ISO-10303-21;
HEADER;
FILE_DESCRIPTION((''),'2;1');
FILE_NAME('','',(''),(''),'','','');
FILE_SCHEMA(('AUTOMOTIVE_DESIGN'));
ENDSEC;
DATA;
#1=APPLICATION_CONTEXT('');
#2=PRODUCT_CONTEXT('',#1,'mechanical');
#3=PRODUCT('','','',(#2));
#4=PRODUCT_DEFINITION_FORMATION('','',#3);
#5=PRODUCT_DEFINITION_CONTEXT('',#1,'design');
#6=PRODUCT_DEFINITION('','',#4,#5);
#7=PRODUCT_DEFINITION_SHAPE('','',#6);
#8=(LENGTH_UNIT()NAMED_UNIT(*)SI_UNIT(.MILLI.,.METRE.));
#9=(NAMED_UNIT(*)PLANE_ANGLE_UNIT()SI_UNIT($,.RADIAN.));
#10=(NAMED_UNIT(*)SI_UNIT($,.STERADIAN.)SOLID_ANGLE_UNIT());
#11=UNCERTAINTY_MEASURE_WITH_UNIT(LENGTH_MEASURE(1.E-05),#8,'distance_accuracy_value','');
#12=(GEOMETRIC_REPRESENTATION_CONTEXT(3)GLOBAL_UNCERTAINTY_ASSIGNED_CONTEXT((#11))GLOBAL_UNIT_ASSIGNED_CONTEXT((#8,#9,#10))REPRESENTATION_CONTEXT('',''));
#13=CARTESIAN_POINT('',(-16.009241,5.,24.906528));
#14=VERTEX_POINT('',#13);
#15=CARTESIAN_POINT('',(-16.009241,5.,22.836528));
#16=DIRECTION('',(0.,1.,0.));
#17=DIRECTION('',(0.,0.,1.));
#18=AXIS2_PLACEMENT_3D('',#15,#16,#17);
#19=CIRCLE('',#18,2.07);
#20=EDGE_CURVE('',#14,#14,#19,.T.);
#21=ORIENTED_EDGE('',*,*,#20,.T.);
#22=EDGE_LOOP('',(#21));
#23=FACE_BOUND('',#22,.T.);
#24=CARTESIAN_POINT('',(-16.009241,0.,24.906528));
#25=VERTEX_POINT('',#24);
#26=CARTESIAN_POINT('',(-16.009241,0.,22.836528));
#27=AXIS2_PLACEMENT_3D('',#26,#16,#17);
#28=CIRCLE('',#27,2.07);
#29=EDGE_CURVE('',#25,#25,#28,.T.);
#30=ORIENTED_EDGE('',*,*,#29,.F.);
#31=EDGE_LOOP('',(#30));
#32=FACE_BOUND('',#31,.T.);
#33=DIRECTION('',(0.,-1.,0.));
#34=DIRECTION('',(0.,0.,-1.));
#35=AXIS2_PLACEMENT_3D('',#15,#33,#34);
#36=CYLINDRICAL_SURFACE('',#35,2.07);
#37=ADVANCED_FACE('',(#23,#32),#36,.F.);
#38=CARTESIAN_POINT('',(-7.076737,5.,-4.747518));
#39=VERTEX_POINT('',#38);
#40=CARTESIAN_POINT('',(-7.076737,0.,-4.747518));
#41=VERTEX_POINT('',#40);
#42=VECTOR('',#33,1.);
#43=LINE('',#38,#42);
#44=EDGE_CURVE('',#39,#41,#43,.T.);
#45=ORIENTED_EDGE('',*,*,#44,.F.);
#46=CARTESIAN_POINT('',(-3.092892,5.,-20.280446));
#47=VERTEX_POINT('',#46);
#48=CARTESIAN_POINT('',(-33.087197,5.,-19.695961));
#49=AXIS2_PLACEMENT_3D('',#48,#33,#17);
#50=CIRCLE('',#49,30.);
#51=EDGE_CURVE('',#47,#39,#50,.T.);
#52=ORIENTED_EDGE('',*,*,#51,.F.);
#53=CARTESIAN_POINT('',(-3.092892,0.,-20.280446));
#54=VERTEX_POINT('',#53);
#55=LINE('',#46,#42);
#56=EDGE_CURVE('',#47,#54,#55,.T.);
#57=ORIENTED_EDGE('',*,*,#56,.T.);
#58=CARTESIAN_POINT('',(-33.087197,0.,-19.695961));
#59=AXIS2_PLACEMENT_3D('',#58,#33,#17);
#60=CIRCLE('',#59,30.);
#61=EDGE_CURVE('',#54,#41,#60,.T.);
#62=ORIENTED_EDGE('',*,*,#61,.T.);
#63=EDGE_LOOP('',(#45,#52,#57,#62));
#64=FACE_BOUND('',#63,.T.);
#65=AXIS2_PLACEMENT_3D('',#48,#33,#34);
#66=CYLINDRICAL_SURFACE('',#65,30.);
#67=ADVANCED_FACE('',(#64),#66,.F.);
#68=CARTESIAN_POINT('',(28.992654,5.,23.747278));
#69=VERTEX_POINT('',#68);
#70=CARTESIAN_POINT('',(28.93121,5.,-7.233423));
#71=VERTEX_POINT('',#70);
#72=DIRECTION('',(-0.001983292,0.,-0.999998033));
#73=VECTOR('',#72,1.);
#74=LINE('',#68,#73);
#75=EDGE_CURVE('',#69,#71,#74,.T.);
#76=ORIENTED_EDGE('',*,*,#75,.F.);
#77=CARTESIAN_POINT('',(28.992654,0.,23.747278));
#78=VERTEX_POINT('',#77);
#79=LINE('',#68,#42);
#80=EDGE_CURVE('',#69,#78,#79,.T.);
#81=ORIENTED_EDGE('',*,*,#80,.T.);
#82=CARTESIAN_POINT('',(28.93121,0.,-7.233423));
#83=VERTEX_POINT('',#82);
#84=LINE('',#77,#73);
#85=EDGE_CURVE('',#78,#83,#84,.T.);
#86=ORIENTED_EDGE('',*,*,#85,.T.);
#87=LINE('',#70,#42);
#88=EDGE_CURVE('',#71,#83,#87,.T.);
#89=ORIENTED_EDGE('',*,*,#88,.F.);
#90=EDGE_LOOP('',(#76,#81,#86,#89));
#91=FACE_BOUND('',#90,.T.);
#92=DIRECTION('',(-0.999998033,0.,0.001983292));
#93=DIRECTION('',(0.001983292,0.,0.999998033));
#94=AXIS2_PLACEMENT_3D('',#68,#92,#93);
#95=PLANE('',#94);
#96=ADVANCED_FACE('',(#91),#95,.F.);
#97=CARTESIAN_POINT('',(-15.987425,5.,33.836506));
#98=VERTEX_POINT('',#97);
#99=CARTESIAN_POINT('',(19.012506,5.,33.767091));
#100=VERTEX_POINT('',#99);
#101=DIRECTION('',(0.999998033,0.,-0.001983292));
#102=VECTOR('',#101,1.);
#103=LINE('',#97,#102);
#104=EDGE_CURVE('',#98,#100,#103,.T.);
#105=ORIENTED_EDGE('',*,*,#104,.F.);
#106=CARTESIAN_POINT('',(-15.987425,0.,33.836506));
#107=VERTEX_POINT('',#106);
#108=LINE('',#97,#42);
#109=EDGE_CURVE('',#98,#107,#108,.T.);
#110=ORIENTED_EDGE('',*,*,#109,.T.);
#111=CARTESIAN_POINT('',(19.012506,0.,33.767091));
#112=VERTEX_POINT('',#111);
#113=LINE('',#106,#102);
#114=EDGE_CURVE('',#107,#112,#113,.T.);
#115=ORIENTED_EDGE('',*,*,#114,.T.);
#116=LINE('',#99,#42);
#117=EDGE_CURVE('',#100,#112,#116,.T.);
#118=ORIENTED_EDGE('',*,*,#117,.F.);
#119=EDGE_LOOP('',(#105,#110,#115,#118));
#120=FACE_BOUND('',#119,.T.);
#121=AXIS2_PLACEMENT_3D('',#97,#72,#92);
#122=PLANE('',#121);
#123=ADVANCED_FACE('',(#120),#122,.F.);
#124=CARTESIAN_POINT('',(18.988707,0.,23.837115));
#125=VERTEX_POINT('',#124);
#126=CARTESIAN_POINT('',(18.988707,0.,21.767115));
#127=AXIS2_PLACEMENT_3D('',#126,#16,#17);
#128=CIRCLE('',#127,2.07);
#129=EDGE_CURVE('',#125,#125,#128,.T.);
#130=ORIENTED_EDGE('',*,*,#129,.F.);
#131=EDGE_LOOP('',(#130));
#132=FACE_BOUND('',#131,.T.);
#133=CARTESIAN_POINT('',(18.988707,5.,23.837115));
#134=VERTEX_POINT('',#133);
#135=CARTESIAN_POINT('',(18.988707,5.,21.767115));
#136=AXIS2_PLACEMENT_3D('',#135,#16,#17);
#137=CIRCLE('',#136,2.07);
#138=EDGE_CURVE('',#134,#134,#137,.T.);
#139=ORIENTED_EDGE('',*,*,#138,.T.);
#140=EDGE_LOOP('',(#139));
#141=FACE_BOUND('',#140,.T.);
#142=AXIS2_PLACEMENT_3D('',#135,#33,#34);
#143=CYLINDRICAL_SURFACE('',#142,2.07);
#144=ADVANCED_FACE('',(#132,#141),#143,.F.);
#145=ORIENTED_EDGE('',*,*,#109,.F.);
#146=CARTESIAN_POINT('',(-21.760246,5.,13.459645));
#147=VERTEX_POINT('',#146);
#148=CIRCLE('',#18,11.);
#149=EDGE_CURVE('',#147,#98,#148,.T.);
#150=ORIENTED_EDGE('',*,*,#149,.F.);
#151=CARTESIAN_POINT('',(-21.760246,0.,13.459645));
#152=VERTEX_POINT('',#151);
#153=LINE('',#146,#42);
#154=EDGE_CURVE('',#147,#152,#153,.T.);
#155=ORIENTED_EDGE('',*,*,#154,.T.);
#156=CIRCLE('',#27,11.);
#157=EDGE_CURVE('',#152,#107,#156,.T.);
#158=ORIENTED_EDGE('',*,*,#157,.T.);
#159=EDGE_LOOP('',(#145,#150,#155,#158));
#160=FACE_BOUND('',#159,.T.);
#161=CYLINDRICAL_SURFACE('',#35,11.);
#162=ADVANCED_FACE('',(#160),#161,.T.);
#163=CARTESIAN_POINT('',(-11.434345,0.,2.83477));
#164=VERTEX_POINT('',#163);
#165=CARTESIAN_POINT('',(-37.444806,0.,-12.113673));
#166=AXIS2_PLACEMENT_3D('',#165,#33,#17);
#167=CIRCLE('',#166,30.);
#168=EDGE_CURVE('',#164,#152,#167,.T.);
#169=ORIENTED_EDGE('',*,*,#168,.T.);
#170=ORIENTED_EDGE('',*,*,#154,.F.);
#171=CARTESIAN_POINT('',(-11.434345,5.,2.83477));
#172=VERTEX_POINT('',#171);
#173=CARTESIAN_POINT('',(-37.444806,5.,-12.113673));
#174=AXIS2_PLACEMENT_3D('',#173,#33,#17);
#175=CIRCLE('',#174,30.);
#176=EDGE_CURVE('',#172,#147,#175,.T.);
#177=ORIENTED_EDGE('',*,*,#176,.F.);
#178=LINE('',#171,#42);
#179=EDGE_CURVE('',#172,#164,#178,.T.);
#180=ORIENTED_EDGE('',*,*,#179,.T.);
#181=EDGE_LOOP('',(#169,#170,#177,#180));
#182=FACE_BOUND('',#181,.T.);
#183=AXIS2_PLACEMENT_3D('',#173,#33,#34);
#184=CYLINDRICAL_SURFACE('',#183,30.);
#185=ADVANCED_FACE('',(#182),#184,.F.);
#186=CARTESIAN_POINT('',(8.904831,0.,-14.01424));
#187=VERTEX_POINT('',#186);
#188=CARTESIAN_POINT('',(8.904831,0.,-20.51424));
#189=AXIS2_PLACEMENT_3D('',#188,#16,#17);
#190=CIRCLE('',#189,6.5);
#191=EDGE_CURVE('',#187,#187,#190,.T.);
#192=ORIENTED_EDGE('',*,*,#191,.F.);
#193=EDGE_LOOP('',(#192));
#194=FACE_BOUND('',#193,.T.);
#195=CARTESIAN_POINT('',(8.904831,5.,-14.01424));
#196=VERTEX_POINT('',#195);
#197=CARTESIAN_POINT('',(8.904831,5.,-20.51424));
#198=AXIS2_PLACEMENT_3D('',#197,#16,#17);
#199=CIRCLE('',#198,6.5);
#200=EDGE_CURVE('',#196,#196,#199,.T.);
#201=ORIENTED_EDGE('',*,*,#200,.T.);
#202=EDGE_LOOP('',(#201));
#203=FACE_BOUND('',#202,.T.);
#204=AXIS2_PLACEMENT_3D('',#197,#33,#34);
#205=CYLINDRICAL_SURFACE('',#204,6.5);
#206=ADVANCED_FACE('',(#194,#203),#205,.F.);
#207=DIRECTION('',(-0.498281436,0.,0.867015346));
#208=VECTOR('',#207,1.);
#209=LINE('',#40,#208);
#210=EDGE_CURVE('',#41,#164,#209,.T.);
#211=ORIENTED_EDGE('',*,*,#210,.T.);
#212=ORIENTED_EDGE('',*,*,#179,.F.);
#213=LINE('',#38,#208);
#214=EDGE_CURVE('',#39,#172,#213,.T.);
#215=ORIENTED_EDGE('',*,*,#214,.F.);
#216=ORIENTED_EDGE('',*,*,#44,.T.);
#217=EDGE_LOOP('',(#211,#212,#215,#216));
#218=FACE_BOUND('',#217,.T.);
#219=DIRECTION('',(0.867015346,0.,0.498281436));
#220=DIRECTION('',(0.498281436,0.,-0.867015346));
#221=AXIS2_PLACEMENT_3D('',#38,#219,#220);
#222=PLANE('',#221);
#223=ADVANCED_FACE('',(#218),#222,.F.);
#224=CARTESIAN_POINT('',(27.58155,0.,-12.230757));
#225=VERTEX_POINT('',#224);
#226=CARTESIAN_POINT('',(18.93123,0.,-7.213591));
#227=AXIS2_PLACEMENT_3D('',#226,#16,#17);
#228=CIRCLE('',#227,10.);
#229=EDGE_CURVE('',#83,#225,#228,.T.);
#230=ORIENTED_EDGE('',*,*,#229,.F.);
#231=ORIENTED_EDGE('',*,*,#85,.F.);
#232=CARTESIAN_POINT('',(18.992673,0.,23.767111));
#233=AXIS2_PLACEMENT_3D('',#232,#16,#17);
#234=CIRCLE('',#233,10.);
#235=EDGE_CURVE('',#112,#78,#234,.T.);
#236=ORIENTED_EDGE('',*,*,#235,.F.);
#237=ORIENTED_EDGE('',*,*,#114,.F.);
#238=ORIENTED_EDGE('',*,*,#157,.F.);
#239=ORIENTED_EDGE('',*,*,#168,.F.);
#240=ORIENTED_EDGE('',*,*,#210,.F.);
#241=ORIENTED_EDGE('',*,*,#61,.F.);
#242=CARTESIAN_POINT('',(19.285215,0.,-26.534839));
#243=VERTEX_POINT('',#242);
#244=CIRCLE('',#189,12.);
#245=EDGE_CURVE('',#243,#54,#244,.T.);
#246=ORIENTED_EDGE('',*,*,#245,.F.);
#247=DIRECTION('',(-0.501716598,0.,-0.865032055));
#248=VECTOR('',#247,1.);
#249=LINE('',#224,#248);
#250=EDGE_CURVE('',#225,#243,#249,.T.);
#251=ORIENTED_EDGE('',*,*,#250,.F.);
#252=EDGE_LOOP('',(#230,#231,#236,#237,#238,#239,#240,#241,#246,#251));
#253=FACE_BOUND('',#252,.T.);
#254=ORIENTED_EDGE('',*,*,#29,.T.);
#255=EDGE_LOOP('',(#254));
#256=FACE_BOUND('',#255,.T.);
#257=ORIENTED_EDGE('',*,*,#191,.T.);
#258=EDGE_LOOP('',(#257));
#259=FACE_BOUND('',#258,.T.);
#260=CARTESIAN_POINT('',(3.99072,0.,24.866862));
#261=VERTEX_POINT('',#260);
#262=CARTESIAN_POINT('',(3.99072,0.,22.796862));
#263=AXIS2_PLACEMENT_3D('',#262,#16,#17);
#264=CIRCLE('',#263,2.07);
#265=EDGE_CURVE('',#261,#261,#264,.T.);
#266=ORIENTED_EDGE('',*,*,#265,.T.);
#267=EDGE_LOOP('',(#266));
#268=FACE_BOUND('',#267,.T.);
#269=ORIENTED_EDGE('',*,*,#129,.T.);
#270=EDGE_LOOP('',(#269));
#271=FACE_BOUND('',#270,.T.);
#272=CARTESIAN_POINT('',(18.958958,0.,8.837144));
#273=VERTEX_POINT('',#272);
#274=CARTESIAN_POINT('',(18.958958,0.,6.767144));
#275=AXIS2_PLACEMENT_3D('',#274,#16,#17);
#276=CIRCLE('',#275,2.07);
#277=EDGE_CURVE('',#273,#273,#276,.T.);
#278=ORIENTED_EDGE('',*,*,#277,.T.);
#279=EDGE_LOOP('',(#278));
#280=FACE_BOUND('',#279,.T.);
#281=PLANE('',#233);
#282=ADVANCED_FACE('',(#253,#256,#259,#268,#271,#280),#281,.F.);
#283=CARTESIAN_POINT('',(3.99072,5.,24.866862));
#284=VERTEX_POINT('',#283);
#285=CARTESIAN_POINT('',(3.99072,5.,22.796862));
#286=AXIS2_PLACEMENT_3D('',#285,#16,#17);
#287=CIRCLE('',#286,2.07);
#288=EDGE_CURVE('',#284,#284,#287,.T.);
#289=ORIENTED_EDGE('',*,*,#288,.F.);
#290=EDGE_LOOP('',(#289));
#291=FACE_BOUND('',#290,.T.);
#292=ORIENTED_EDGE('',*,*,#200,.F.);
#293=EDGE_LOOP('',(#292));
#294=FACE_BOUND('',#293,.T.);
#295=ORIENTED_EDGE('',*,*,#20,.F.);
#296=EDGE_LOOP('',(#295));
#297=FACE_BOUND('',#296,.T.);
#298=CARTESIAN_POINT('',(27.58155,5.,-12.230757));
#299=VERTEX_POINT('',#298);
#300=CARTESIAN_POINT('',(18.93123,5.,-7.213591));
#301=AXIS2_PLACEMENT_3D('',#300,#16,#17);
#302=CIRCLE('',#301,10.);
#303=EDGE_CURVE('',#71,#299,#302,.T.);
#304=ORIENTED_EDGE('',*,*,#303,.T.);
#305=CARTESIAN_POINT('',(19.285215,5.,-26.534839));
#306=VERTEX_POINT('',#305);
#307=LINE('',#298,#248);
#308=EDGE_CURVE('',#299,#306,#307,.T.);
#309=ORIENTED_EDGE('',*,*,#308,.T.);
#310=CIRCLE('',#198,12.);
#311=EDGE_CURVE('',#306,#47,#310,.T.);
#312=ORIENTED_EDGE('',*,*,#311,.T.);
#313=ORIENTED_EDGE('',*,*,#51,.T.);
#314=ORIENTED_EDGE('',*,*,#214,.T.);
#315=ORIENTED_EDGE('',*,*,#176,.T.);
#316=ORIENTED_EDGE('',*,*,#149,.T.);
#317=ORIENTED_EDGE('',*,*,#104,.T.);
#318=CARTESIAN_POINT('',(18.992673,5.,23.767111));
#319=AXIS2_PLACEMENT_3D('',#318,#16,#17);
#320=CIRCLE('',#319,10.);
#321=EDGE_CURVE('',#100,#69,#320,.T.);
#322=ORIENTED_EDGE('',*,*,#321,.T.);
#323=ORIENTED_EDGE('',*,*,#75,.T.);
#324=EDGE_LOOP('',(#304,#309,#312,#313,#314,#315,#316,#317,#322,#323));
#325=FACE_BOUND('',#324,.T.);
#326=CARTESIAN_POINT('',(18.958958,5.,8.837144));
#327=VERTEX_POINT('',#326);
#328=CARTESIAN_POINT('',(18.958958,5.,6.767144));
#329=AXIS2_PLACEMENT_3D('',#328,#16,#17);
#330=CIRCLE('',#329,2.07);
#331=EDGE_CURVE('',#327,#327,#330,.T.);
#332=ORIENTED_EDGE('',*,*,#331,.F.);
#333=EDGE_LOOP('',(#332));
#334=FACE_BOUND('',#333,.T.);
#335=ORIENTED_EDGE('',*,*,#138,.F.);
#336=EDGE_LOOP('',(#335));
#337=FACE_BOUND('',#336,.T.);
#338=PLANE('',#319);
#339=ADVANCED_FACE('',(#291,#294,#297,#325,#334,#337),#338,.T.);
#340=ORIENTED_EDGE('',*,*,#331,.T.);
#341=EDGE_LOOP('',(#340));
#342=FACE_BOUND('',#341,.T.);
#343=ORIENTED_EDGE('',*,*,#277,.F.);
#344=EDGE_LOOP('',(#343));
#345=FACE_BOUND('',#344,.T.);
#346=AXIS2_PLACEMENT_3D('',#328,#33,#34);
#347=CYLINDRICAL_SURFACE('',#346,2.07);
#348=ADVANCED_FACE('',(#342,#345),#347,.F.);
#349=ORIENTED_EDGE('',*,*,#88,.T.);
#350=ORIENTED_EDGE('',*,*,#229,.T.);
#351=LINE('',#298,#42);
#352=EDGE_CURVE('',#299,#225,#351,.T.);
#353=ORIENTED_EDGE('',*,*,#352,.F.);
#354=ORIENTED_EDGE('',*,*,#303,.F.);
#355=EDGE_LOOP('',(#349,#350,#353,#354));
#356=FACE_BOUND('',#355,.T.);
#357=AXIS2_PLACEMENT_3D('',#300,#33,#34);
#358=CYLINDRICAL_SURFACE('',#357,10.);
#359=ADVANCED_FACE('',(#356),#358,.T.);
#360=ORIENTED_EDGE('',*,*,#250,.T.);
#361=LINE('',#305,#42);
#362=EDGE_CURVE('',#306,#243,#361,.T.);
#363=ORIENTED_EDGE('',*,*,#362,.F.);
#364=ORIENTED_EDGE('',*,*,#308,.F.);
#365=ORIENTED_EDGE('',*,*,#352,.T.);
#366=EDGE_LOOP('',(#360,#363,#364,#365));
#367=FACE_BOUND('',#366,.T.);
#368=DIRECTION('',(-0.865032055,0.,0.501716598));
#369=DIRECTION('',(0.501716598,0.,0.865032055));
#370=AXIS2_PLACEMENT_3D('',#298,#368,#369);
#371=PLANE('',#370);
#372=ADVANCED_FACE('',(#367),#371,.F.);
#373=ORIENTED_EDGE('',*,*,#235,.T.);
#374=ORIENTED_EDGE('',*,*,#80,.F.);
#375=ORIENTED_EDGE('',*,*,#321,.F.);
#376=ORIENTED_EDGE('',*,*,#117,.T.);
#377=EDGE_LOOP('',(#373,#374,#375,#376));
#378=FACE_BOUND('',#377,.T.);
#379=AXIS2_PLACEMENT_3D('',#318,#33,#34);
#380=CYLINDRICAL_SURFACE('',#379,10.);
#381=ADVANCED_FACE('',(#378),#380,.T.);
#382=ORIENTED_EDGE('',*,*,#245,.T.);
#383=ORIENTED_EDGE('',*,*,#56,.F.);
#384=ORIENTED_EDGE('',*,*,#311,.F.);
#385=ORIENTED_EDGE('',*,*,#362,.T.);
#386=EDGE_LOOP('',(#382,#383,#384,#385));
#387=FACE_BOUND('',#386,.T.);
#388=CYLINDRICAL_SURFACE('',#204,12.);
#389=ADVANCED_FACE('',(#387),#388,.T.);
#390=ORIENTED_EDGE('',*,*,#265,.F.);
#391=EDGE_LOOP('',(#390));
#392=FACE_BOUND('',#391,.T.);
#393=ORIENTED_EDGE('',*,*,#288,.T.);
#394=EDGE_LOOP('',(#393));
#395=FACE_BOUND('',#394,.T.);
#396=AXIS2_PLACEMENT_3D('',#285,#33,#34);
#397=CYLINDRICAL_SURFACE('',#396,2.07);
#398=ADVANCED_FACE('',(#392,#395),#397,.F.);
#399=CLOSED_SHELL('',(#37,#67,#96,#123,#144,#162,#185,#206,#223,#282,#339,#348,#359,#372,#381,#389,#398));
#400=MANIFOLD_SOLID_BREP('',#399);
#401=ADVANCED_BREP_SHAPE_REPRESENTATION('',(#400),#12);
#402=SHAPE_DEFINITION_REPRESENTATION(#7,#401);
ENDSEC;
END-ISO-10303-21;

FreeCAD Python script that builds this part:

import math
import FreeCAD as App
import Part
import Sketcher
from FreeCAD import Vector

doc = App.newDocument("Part")
body = doc.addObject("PartDesign::Body", "Body")

sketch1 = body.newObject("Sketcher::SketchObject", "Sketch")
sketch1.AttachmentSupport = (doc.getObject("XZ_Plane"), [""])
sketch1.MapMode = "FlatFace"
sketch1.addGeometry([
    Part.LineSegment(Vector(28.992654, 23.747278, 0), Vector(28.93121, -7.233423, 0)),
    Part.ArcOfCircle(Part.Circle(Vector(18.93123, -7.213591, 0), Vector(0, 0, 1), 10), math.radians(-30.113634), math.radians(-0.113634)),
    Part.LineSegment(Vector(27.58155, -12.230757, 0), Vector(19.285215, -26.534839, 0)),
    Part.ArcOfCircle(Part.Circle(Vector(8.904831, -20.51424, 0), Vector(0, 0, 1), 12), math.radians(178.883647), math.radians(329.886366)),
    Part.ArcOfCircle(Part.Circle(Vector(-33.087197, -19.695961, 0), Vector(0, 0, 1), 30), math.radians(-1.116353), math.radians(29.886366)),
    Part.LineSegment(Vector(-7.076737, -4.747518, 0), Vector(-11.434345, 2.83477, 0)),
    Part.ArcOfCircle(Part.Circle(Vector(-37.444806, -12.113673, 0), Vector(0, 0, 1), 30), math.radians(29.886366), math.radians(58.478488)),
    Part.ArcOfCircle(Part.Circle(Vector(-16.009241, 22.836528, 0), Vector(0, 0, 1), 11), math.radians(89.886366), math.radians(238.478488)),
    Part.LineSegment(Vector(-15.987425, 33.836506, 0), Vector(19.012506, 33.767091, 0)),
    Part.ArcOfCircle(Part.Circle(Vector(18.992673, 23.767111, 0), Vector(0, 0, 1), 10), math.radians(-0.113634), math.radians(89.886366)),
    Part.Circle(Vector(-16.009241, 22.836528, 0), Vector(0, 0, 1), 2.07),
    Part.Circle(Vector(3.99072, 22.796862, 0), Vector(0, 0, 1), 2.07),
    Part.Circle(Vector(18.988707, 21.767115, 0), Vector(0, 0, 1), 2.07),
    Part.Circle(Vector(18.958958, 6.767144, 0), Vector(0, 0, 1), 2.07),
    Part.Circle(Vector(8.904831, -20.51424, 0), Vector(0, 0, 1), 6.5),
], False)
sketch1.addConstraint([
    Sketcher.Constraint("Tangent", 0, 2, 1, 2),
    Sketcher.Constraint("Tangent", 1, 1, 2, 1),
    Sketcher.Constraint("Tangent", 2, 2, 3, 2),
    Sketcher.Constraint("Tangent", 3, 1, 4, 1),
    Sketcher.Constraint("Tangent", 4, 2, 5, 1),
    Sketcher.Constraint("Tangent", 5, 2, 6, 1),
    Sketcher.Constraint("Tangent", 6, 2, 7, 2),
    Sketcher.Constraint("Tangent", 7, 1, 8, 1),
    Sketcher.Constraint("Tangent", 8, 2, 9, 2),
    Sketcher.Constraint("Tangent", 9, 1, 0, 1),
    Sketcher.Constraint("Coincident", 10, 3, 7, 3),
    Sketcher.Constraint("Coincident", 14, 3, 3, 3),
    Sketcher.Constraint("Equal", 4, 6),
    Sketcher.Constraint("Equal", 1, 9),
    Sketcher.Constraint("Equal", 10, 11),
    Sketcher.Constraint("Equal", 11, 12),
    Sketcher.Constraint("Equal", 12, 13),
    Sketcher.Constraint("Perpendicular", 0, 8),
    Sketcher.Constraint("Diameter", 14, 13.0),
    Sketcher.Constraint("Radius", 1, 10.0),
    Sketcher.Constraint("Radius", 3, 12.0),
    Sketcher.Constraint("Radius", 4, 30.0),
    Sketcher.Constraint("Radius", 7, 11.0),
    Sketcher.Constraint("Diameter", 10, 4.14),
    Sketcher.Constraint("Distance", 8, 35.0),
    Sketcher.Constraint("Distance", 2, 16.535898),
    Sketcher.Constraint("DistanceX", 3, 3, 1, 3, 10.026399),
    Sketcher.Constraint("DistanceY", 6, 3, 7, 3, 34.950201),
    Sketcher.Constraint("DistanceY", 1, 3, 9, 3, 30.980701),
    Sketcher.Constraint("DistanceY", 3, 3, 11, 3, 43.311101),
    Sketcher.Constraint("DistanceY", 1, 1, 13, 3, 18.997901),
    Sketcher.Constraint("DistanceX", 6, 2, 5, 2, 10.325901),
    Sketcher.Constraint("DistanceX", 12, 3, 8, 2, 0.023799),
    Sketcher.Constraint("DistanceX", -1, 1, 1, 3, 18.93123),
    Sketcher.Constraint("DistanceY", 1, 3, -1, 1, 7.213591),
    Sketcher.Constraint("DistanceY", 4, 3, -1, 1, 19.695961),
    Sketcher.Constraint("DistanceX", -1, 1, 11, 3, 3.99072),
    Sketcher.Constraint("DistanceX", 13, 3, 12, 3, 0.029749),
    Sketcher.Constraint("DistanceY", 13, 3, 12, 3, 14.99997),
])
pad1 = body.newObject("PartDesign::Pad", "Pad")
pad1.Profile = sketch1
pad1.Length = 5
pad1.Reversed = True

doc.recompute()
